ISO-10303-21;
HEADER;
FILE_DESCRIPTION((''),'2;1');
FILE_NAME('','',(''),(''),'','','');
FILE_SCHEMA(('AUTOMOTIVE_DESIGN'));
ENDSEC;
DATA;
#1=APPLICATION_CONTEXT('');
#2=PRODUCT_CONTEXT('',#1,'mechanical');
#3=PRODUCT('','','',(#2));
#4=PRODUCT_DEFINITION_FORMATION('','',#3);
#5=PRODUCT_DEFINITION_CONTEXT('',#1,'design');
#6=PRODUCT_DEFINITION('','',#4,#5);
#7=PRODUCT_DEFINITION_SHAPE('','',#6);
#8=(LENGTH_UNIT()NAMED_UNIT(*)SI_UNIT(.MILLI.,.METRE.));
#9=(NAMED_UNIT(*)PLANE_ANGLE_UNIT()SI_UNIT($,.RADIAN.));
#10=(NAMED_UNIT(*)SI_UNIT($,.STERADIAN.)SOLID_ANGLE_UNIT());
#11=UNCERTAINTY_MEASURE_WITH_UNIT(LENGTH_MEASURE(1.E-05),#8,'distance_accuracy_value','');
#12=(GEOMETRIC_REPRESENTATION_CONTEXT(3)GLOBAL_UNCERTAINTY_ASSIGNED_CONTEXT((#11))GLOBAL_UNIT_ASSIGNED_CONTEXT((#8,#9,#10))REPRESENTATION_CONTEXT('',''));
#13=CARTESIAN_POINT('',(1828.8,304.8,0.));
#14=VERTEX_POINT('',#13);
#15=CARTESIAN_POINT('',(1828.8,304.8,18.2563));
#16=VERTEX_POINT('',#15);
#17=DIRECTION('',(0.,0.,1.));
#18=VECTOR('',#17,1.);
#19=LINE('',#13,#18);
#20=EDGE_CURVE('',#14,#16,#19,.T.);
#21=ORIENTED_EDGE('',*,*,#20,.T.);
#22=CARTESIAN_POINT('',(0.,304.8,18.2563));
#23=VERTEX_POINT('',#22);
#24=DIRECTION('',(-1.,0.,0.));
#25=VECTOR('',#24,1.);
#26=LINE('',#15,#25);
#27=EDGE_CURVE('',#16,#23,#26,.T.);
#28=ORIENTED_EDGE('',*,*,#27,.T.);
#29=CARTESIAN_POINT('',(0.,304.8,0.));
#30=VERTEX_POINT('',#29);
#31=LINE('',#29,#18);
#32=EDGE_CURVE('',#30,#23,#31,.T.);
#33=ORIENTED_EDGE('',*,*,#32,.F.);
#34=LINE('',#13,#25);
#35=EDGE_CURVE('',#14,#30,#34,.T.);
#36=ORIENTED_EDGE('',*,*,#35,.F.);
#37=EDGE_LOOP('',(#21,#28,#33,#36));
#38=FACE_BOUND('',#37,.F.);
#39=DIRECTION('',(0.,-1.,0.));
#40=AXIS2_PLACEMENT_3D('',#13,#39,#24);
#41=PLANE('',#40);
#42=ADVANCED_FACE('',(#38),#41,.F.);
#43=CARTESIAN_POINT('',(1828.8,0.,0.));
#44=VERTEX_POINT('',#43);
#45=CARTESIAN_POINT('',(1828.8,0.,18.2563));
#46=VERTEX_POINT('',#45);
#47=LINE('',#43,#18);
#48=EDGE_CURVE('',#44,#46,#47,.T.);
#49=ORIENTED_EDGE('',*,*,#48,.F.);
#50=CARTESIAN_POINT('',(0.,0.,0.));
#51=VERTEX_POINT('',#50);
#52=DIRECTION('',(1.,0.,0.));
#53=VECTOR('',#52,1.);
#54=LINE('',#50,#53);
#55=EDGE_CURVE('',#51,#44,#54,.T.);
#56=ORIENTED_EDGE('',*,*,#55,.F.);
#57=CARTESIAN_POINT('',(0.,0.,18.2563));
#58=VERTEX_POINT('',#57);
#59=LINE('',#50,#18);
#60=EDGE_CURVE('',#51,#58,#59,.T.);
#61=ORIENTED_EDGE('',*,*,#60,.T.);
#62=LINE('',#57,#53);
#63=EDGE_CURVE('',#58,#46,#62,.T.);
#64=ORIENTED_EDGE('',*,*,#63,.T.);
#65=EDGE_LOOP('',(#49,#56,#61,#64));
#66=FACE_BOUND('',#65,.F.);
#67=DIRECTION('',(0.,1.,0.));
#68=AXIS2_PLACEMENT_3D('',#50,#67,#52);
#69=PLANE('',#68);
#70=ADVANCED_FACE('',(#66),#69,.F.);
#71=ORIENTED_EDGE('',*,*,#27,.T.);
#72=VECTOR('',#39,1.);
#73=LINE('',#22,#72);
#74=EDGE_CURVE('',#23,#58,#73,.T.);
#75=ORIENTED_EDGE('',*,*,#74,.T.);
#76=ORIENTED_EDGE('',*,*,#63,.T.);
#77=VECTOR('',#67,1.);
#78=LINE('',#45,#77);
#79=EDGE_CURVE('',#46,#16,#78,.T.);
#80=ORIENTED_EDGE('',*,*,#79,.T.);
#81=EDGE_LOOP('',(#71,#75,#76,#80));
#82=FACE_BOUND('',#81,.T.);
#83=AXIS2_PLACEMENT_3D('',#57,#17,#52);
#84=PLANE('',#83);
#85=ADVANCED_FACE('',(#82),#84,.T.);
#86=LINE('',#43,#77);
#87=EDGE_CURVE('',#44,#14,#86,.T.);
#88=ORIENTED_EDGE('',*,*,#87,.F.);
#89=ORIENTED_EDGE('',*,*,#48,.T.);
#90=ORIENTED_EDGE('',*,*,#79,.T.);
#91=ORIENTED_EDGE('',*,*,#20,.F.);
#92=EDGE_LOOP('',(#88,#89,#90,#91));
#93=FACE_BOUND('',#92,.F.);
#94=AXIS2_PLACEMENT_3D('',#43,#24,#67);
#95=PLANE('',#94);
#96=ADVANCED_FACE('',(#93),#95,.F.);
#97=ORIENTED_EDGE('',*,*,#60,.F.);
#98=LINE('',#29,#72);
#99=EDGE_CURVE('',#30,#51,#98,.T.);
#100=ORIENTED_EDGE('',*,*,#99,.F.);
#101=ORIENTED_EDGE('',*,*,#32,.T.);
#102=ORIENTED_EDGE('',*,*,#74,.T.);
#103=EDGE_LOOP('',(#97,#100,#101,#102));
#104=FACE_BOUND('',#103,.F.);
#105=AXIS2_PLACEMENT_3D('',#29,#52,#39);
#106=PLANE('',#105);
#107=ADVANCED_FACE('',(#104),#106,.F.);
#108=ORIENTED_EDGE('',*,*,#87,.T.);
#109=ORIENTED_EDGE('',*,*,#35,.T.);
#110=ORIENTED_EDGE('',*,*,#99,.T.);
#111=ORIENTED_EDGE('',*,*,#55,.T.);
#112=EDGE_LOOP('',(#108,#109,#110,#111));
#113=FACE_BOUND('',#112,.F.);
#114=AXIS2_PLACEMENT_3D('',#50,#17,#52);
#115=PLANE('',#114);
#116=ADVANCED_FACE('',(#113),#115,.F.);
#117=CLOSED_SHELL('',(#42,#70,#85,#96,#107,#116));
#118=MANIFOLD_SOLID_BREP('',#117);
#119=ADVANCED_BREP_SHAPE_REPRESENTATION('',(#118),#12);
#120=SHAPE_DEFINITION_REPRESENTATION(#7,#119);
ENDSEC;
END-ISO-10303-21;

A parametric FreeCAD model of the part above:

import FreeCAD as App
import Part
import Sketcher
Q = App.Units.Quantity

doc = App.newDocument("Part")
params = doc.addObject("Spreadsheet::Sheet", "Params")
for row, (alias, value) in enumerate([
    ("sketch1_width", "72 in"),
    ("sketch1_height", "12 in"),
    ("pad1_length", "0.718752 in"),
], start=1):
    params.set(f"A{row}", alias)
    params.set(f"B{row}", "=" + value)
    params.setAlias(f"B{row}", alias)

body = doc.addObject("PartDesign::Body", "Body")

# Sketch on XY plane
sketch1 = body.newObject("Sketcher::SketchObject", "Sketch")
sketch1.AttachmentSupport = (doc.getObject("XY_Plane"), [""])
sketch1.MapMode = "FlatFace"
sketch1.addGeometry([
    Part.LineSegment(App.Vector(0, 304.8, 0), App.Vector(0, 0, 0)),
    Part.LineSegment(App.Vector(0, 0, 0), App.Vector(1828.8, 0, 0)),
    Part.LineSegment(App.Vector(1828.8, 0, 0), App.Vector(1828.8, 304.8, 0)),
    Part.LineSegment(App.Vector(1828.8, 304.8, 0), App.Vector(0, 304.8, 0)),
], False)
sketch1.addConstraint([
    Sketcher.Constraint("Coincident", 0, 2, 1, 1),
    Sketcher.Constraint("Coincident", 1, 2, 2, 1),
    Sketcher.Constraint("Coincident", 2, 2, 3, 1),
    Sketcher.Constraint("Coincident", 3, 2, 0, 1),
    Sketcher.Constraint("Vertical", 0),
    Sketcher.Constraint("Horizontal", 1),
    Sketcher.Constraint("Vertical", 2),
    Sketcher.Constraint("Horizontal", 3),
    Sketcher.Constraint("Coincident", 0, 2, -1, 1),
    Sketcher.Constraint("DistanceX", 1, 1, 1, 2, Q("72 in")),
    Sketcher.Constraint("DistanceY", 0, 2, 0, 1, Q("12 in")),
])
sketch1.setExpression("Constraints[9]", "Params.sketch1_width")
sketch1.setExpression("Constraints[10]", "Params.sketch1_height")
pad1 = body.newObject("PartDesign::Pad", "Pad")
pad1.Profile = sketch1
pad1.setExpression("Length", "Params.pad1_length")

doc.recompute()
